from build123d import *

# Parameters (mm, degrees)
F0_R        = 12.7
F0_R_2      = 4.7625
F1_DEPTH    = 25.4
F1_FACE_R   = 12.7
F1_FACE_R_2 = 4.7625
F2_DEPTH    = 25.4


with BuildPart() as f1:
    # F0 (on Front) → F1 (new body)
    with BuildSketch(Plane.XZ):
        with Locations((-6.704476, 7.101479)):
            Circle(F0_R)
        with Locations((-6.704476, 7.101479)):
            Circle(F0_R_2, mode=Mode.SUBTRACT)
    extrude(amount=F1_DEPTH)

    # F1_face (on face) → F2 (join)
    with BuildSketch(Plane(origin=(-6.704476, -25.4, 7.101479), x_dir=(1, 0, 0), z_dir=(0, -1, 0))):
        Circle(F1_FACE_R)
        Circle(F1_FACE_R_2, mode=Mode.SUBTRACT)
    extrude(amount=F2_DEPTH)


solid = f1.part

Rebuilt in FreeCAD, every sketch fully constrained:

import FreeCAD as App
import Part
import Sketcher

V = App.Vector
Q = App.Units.Quantity

doc = App.newDocument("Part")
body = doc.addObject("PartDesign::Body", "Body")

# Sketch on XZ plane
sketch1 = body.newObject("Sketcher::SketchObject", "Sketch")
sketch1.AttachmentSupport = (doc.getObject("XZ_Plane"), [""])
sketch1.MapMode = "FlatFace"
sketch1.addGeometry([
    Part.Circle(V(-6.704476, 7.101479, 0), V(0, 0, 1), 12.7),
    Part.Circle(V(-6.704476, 7.101479, 0), V(0, 0, 1), 4.7625),
], False)
sketch1.addConstraint([
    Sketcher.Constraint("Coincident", 1, 3, 0, 3),
    Sketcher.Constraint("Diameter", 0, Q("1 in")),
    Sketcher.Constraint("Diameter", 1, Q("0.375 in")),
    Sketcher.Constraint("DistanceY", -1, 1, 0, 3, 7.101479),
    Sketcher.Constraint("DistanceX", 0, 3, -1, 1, 6.704476),
])
pad1 = body.newObject("PartDesign::Pad", "Pad")
pad1.Profile = sketch1
pad1.Length = Q("1 in")

# Sketch on XZ plane
sketch2 = body.newObject("Sketcher::SketchObject", "Sketch001")
sketch2.AttachmentSupport = (doc.getObject("XZ_Plane"), [""])
sketch2.MapMode = "FlatFace"
sketch2.AttachmentOffset = App.Placement(V(0, 0, 1 * 25.4), App.Rotation())
sketch2.addGeometry([
    Part.Circle(V(-6.704476, 7.101479, 0), V(0, 0, 1), 12.7),
    Part.Circle(V(-6.704476, 7.101479, 0), V(0, 0, 1), 4.7625),
], False)
sketch2.addConstraint([
    Sketcher.Constraint("Coincident", 1, 3, 0, 3),
    Sketcher.Constraint("Diameter", 0, Q("1 in")),
    Sketcher.Constraint("Diameter", 1, Q("0.375 in")),
    Sketcher.Constraint("DistanceY", -1, 1, 0, 3, 7.101479),
    Sketcher.Constraint("DistanceX", 0, 3, -1, 1, 6.704476),
])
pad2 = body.newObject("PartDesign::Pad", "Pad001")
pad2.Profile = sketch2
pad2.Length = Q("1 in")

doc.recompute()
